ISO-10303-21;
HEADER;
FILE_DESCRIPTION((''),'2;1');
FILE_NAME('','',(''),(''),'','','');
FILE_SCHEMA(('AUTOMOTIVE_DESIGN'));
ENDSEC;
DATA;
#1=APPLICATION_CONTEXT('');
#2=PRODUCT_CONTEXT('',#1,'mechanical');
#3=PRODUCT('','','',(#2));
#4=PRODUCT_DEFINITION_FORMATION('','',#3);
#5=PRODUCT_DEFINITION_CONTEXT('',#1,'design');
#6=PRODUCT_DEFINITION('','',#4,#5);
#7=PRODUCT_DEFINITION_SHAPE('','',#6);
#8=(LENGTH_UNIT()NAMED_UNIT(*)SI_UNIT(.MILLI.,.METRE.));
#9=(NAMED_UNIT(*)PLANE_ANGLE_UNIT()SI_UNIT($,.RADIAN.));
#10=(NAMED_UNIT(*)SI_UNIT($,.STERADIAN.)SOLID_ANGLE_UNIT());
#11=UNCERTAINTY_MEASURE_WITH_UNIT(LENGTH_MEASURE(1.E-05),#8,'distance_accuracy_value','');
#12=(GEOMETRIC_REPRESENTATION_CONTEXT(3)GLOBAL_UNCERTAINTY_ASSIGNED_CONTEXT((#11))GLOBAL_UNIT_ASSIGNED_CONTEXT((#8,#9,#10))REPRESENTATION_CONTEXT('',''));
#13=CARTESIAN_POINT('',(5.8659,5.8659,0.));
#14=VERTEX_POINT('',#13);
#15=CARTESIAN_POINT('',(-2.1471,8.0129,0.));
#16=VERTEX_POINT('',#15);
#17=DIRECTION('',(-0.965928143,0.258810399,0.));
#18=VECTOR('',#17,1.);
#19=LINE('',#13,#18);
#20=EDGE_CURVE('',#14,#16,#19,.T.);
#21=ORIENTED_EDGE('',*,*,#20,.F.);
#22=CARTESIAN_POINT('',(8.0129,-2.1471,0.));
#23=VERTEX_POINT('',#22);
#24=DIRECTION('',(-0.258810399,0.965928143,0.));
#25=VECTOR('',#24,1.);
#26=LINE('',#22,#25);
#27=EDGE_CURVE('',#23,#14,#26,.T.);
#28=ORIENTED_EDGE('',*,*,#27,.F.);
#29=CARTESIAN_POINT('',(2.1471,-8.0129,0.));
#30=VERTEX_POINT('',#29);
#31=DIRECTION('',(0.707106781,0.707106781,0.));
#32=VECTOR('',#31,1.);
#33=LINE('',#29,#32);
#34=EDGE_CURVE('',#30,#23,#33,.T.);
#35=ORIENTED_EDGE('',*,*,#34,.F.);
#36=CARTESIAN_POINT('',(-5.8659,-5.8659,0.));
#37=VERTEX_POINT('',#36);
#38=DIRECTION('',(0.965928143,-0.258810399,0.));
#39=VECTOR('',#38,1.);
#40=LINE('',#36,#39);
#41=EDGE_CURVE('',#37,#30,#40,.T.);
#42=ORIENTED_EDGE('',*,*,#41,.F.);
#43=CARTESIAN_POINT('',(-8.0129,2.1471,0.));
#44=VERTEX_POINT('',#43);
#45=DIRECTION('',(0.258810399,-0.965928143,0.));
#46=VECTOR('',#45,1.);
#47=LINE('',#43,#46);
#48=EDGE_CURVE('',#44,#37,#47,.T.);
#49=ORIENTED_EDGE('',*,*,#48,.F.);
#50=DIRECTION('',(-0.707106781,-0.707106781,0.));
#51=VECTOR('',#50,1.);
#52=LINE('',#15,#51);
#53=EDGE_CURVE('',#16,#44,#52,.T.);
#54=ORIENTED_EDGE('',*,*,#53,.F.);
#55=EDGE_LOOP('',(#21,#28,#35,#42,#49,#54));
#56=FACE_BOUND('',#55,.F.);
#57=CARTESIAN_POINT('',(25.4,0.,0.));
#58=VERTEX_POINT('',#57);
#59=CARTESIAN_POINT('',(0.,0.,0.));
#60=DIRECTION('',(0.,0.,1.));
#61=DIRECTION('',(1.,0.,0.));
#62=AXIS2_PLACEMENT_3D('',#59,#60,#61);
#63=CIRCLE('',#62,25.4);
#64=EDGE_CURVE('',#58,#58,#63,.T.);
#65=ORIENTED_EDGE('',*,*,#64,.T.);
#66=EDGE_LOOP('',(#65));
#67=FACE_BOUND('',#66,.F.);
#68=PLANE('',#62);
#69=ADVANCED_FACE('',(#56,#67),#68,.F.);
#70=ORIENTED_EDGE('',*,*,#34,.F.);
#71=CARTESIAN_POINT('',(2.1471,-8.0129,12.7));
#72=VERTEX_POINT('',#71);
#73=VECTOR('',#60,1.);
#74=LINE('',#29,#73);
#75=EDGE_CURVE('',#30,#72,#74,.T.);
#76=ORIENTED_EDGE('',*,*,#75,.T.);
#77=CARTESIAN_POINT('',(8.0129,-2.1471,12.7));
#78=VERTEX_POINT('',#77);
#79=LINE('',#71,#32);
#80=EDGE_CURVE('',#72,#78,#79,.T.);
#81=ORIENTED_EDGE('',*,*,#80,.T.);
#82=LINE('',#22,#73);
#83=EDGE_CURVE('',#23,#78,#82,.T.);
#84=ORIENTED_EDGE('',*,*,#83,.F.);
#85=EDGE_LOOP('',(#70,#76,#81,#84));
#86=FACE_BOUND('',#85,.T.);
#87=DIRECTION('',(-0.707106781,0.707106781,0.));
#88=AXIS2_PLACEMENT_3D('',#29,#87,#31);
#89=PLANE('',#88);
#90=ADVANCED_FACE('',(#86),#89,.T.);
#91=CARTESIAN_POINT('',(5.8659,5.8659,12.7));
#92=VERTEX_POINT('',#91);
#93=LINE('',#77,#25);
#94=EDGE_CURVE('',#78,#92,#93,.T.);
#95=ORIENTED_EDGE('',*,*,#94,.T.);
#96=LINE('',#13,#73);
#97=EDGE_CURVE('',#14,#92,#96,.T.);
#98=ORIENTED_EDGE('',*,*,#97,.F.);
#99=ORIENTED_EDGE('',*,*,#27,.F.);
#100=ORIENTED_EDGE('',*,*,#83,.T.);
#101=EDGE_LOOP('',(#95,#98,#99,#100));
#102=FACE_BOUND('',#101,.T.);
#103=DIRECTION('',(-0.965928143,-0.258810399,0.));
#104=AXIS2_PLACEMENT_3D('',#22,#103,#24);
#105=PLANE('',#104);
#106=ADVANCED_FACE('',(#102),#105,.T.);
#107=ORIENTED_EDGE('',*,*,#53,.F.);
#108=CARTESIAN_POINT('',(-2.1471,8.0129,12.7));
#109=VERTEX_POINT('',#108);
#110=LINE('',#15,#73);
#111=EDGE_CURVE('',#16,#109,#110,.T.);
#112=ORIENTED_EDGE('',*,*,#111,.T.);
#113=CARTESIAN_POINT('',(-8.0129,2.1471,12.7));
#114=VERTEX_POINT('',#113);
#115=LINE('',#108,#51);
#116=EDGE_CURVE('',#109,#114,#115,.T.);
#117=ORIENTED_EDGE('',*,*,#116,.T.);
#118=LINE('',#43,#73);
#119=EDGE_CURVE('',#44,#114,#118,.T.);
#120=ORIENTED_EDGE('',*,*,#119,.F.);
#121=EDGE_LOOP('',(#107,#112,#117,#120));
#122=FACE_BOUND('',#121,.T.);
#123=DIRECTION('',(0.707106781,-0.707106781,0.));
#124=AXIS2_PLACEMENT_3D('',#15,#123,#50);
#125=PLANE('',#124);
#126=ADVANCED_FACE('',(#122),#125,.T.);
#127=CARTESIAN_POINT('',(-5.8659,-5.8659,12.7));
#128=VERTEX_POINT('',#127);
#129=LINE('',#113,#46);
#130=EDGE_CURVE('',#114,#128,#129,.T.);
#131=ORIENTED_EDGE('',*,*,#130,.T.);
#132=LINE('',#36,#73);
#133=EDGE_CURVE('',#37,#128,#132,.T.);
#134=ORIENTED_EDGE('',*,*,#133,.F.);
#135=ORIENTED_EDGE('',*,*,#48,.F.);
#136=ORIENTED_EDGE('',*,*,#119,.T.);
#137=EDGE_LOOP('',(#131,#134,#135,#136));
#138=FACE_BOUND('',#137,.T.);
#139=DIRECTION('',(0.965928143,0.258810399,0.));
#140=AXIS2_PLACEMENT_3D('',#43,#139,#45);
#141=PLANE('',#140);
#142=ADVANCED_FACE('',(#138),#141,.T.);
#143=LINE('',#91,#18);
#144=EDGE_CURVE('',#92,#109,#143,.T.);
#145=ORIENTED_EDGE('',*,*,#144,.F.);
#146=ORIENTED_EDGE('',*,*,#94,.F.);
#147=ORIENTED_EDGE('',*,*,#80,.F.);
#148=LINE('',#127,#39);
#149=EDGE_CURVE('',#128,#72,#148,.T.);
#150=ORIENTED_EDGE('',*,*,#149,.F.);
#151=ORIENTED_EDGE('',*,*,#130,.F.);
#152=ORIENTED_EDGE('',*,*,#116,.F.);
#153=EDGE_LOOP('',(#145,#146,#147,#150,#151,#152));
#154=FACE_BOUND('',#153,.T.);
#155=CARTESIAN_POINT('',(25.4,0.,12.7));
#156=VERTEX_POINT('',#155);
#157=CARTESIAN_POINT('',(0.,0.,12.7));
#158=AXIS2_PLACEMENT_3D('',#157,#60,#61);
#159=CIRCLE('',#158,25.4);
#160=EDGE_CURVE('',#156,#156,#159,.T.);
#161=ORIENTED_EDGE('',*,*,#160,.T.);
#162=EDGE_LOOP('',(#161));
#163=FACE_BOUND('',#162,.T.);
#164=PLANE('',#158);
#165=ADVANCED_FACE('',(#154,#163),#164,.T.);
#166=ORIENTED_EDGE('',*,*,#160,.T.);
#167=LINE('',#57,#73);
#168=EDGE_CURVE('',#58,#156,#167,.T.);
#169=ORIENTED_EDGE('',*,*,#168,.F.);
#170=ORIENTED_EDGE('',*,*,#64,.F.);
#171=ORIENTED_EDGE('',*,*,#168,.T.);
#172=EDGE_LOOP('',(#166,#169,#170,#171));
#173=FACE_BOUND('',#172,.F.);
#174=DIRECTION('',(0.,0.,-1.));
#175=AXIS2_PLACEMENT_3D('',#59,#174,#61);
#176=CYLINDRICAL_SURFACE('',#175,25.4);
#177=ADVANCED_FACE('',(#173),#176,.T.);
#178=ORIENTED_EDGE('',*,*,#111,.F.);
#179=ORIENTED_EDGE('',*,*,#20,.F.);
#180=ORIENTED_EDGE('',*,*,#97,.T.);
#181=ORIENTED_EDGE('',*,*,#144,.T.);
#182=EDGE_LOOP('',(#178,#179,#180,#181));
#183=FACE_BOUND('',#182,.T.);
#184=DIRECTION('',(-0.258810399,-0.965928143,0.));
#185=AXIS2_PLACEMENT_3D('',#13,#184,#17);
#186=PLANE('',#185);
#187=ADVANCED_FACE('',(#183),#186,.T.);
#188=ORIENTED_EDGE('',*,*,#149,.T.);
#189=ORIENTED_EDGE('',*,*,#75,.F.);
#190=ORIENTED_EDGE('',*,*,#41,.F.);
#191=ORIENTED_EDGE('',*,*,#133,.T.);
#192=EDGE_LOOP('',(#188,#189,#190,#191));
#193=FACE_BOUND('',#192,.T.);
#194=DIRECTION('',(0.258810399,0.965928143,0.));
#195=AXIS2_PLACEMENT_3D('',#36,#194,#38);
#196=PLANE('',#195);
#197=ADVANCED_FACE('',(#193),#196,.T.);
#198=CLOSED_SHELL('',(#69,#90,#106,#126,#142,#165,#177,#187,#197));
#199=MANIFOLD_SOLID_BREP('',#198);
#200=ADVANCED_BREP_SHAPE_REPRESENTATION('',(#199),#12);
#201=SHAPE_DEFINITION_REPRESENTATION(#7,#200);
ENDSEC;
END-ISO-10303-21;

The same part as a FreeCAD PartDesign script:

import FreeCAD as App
import Part
import Sketcher
from FreeCAD import Vector
Q = App.Units.Quantity


def add_polygon(sketch, points):
    """Adds a closed chain of lines whose ends are joined by coincident constraints."""
    first, n = sketch.GeometryCount, len(points)
    for a, b in zip(points, points[1:] + points[:1]):
        sketch.addGeometry(Part.LineSegment(App.Vector(*a, 0), App.Vector(*b, 0)), False)
    for i in range(n):
        sketch.addConstraint(Sketcher.Constraint("Coincident", first + i, 2, first + (i + 1) % n, 1))

doc = App.newDocument("Part")
params = doc.addObject("Spreadsheet::Sheet", "Params")
for row, (alias, value) in enumerate([
    ("sketch1_diameter", "2 in"),
    ("pad1_length", "0.5 in"),
], start=1):
    params.set(f"A{row}", alias)
    params.set(f"B{row}", "=" + value)
    params.setAlias(f"B{row}", alias)

body = doc.addObject("PartDesign::Body", "Body")

sketch1 = body.newObject("Sketcher::SketchObject", "Sketch")
sketch1.AttachmentSupport = (doc.getObject("XY_Plane"), [""])
sketch1.MapMode = "FlatFace"
sketch1.addGeometry(Part.Circle(Vector(0, 0, 0), Vector(0, 0, 1), 25), False)
add_polygon(sketch1, [(6, 6), (8, -2), (2, -8), (-6, -6), (-8, 2), (-2, 8)])
sketch1.addConstraint(Sketcher.Constraint("Coincident", 0, 3, -1, 1))
sketch1.addConstraint(Sketcher.Constraint("Symmetric", 1, 2, 4, 2, -1, 1))
sketch1.addConstraint(Sketcher.Constraint("Symmetric", 2, 2, 5, 2, -1, 1))
sketch1.addConstraint(Sketcher.Constraint("Symmetric", 3, 2, 6, 2, -1, 1))
sketch1.addConstraint(Sketcher.Constraint("Equal", 1, 2))
sketch1.addConstraint(Sketcher.Constraint("Equal", 2, 3))
sketch1.addConstraint(Sketcher.Constraint("Diameter", 0, Q("2 in")))
sketch1.addConstraint(Sketcher.Constraint("Angle", 1, Q("-75.0005 deg")))
sketch1.addConstraint(Sketcher.Constraint("Angle", 2, Q("-135 deg")))
sketch1.addConstraint(Sketcher.Constraint("Angle", 3, Q("165.0005 deg")))
sketch1.addConstraint(Sketcher.Constraint("DistanceX", 4, 2, 2, 2, Q("0.4 in")))
sketch1.setExpression("Constraints[12]", "Params.sketch1_diameter")
pad1 = body.newObject("PartDesign::Pad", "Pad")
pad1.Profile = sketch1
pad1.setExpression("Length", "Params.pad1_length")

doc.recompute()
